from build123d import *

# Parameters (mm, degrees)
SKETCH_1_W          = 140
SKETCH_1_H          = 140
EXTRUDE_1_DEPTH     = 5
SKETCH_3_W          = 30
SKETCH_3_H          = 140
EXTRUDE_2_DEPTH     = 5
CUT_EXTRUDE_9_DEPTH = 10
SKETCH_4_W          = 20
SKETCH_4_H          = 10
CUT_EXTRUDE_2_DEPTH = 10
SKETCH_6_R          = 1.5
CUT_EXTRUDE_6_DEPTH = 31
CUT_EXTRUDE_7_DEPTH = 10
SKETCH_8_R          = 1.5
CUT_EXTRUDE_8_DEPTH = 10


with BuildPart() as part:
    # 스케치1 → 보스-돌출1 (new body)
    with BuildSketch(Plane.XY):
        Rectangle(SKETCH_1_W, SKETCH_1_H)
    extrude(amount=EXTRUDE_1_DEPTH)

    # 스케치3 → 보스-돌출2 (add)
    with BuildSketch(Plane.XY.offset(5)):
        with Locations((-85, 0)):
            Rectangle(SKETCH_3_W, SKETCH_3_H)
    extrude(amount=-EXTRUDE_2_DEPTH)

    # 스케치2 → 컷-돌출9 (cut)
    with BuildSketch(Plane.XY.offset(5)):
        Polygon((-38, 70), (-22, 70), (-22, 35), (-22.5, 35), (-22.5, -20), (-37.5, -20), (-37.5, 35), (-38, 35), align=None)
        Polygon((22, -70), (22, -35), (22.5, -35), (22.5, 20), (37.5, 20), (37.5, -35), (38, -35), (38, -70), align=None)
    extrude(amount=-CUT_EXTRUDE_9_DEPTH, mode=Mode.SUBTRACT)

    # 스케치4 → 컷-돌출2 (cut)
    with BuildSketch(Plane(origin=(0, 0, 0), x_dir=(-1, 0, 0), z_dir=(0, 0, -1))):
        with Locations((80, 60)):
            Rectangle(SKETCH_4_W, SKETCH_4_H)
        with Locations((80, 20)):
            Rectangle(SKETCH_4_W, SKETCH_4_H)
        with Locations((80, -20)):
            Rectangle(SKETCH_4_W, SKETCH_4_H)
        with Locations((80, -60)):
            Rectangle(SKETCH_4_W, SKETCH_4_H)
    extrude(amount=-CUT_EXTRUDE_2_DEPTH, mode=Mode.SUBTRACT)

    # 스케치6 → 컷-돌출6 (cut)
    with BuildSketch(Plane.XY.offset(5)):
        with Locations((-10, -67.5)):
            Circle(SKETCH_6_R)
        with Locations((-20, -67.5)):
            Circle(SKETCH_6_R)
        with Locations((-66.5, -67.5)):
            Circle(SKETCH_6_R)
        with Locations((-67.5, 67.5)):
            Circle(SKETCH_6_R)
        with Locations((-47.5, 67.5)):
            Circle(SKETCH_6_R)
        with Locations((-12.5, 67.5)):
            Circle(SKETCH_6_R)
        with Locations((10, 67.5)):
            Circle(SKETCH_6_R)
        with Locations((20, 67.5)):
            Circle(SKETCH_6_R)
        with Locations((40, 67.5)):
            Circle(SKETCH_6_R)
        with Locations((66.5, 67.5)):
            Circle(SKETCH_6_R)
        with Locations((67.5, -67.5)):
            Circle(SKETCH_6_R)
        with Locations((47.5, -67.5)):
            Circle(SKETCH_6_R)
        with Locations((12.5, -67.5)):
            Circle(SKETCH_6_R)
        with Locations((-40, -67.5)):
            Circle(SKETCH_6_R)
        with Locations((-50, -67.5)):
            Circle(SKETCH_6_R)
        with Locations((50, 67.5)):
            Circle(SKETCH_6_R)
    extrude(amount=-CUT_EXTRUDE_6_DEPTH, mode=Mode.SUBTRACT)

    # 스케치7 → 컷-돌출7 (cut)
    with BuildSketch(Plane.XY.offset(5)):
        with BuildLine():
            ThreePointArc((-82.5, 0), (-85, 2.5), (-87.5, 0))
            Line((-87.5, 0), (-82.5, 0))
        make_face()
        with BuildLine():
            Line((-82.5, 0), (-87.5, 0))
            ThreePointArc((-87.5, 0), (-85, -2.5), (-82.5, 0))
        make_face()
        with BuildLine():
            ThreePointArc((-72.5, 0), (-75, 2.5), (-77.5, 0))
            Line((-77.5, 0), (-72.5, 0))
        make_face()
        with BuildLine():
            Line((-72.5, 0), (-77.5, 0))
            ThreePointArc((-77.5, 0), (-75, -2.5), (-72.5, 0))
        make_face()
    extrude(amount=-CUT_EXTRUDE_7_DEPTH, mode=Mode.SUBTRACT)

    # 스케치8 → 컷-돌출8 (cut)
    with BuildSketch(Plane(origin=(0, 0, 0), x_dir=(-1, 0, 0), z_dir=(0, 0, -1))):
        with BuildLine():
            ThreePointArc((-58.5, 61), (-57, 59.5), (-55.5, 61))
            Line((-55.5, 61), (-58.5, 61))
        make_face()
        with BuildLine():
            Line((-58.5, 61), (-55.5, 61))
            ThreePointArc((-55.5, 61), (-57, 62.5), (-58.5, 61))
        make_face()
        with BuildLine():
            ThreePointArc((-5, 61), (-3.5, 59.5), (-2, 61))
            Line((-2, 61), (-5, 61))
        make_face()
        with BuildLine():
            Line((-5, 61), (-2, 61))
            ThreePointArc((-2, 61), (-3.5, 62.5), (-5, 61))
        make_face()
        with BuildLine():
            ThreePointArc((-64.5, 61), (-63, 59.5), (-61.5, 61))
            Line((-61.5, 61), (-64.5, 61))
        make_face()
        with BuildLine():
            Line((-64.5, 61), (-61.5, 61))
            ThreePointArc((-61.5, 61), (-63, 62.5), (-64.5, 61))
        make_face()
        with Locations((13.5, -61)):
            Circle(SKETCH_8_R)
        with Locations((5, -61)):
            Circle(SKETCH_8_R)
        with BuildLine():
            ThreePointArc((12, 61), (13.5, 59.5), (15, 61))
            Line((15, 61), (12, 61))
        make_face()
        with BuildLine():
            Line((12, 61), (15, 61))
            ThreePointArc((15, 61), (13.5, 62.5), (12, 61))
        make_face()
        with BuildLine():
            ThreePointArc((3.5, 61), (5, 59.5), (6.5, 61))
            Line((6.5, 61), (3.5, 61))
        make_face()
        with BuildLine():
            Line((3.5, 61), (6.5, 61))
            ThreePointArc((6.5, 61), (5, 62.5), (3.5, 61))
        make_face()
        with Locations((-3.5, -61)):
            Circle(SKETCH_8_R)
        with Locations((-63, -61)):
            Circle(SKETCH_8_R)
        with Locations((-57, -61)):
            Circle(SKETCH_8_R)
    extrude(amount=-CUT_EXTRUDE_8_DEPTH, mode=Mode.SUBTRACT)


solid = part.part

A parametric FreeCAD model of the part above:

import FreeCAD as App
import Part
import Sketcher

V = App.Vector
Q = App.Units.Quantity


def add_polygon(sketch, points):
    """Adds a closed chain of lines whose ends are joined by coincident constraints."""
    first, n = sketch.GeometryCount, len(points)
    for a, b in zip(points, points[1:] + points[:1]):
        sketch.addGeometry(Part.LineSegment(App.Vector(*a, 0), App.Vector(*b, 0)), False)
    for i in range(n):
        sketch.addConstraint(Sketcher.Constraint("Coincident", first + i, 2, first + (i + 1) % n, 1))

doc = App.newDocument("Part")
body = doc.addObject("PartDesign::Body", "Body")

# Sketch on XY plane
sketch1 = doc.addObject("Sketcher::SketchObject", "Sketch")
body.addObject(sketch1)
sketch1.AttachmentSupport = (doc.XY_Plane, [""])
sketch1.MapMode = "FlatFace"
add_polygon(sketch1, [(-70, 70), (-70, -70), (70, -70), (70, 70)])  # lines 0-3
sketch1.addConstraint([
    Sketcher.Constraint("Vertical", 0),
    Sketcher.Constraint("Horizontal", 1),
    Sketcher.Constraint("Vertical", 2),
    Sketcher.Constraint("Horizontal", 3),
    Sketcher.Constraint("Symmetric", 0, 2, 2, 2, -1, 1),
    Sketcher.Constraint("Equal", 3, 0),
    Sketcher.Constraint("DistanceX", 1, 1, 1, 2, Q("140 mm")),
])
pad1 = doc.addObject("PartDesign::Pad", "Pad")
body.addObject(pad1)
pad1.Profile = sketch1
pad1.Length = 5

# Sketch on XY plane
sketch2 = doc.addObject("Sketcher::SketchObject", "Sketch001")
body.addObject(sketch2)
sketch2.AttachmentSupport = (doc.XY_Plane, [""])
sketch2.MapMode = "FlatFace"
sketch2.AttachmentOffset = App.Placement(V(0, 0, 5), App.Rotation())
add_polygon(sketch2, [(-100, 70), (-100, -70), (-70, -70), (-70, 70)])  # lines 0-3
sketch2.addConstraint([
    Sketcher.Constraint("Vertical", 0),
    Sketcher.Constraint("Horizontal", 1),
    Sketcher.Constraint("Vertical", 2),
    Sketcher.Constraint("Horizontal", 3),
    Sketcher.Constraint("DistanceX", 1, 1, 1, 2, Q("30 mm")),
    Sketcher.Constraint("DistanceY", 0, 2, 0, 1, Q("140 mm")),
    Sketcher.Constraint("DistanceX", 0, 2, -1, 1, Q("100 mm")),
    Sketcher.Constraint("DistanceY", 0, 2, -1, 1, Q("70 mm")),
])
pad2 = doc.addObject("PartDesign::Pad", "Pad001")
body.addObject(pad2)
pad2.Profile = sketch2
pad2.Length = 5
pad2.Reversed = True

# Sketch on XY plane
sketch3 = doc.addObject("Sketcher::SketchObject", "Sketch002")
body.addObject(sketch3)
sketch3.AttachmentSupport = (doc.XY_Plane, [""])
sketch3.MapMode = "FlatFace"
sketch3.AttachmentOffset = App.Placement(V(0, 0, 5), App.Rotation())
add_polygon(sketch3, [(-22, 70), (-38, 70), (-38, 35), (-37.5, 35), (-37.5, -20), (-22.5, -20), (-22.5, 35), (-22, 35)])  # lines 0-7
add_polygon(sketch3, [(22, -35), (22, -70), (38, -70), (38, -35), (37.5, -35), (37.5, 20), (22.5, 20), (22.5, -35)])  # lines 8-15
sketch3.addConstraint([
    Sketcher.Constraint("Horizontal", 0),
    Sketcher.Constraint("Vertical", 1),
    Sketcher.Constraint("Horizontal", 2),
    Sketcher.Constraint("Vertical", 3),
    Sketcher.Constraint("Horizontal", 4),
    Sketcher.Constraint("Vertical", 5),
    Sketcher.Constraint("Horizontal", 6),
    Sketcher.Constraint("Vertical", 7),
    Sketcher.Constraint("Vertical", 8),
    Sketcher.Constraint("Horizontal", 9),
    Sketcher.Constraint("Vertical", 10),
    Sketcher.Constraint("Horizontal", 11),
    Sketcher.Constraint("Vertical", 12),
    Sketcher.Constraint("Horizontal", 13),
    Sketcher.Constraint("Vertical", 14),
    Sketcher.Constraint("Horizontal", 15),
    Sketcher.Constraint("Symmetric", 7, 2, 8, 2, -1, 1),
    Sketcher.Constraint("Symmetric", 1, 2, 10, 2, -1, 1),
    Sketcher.Constraint("Symmetric", 3, 2, 12, 2, -1, 1),
    Sketcher.Constraint("Symmetric", 5, 2, 14, 2, -1, 1),
    Sketcher.Constraint("Horizontal", 2, 2, 5, 2),
    Sketcher.Constraint("Equal", 2, 6),
    Sketcher.Constraint("DistanceX", 0, 2, 0, 1, Q("16 mm")),
    Sketcher.Constraint("DistanceX", 4, 1, 4, 2, Q("15 mm")),
    Sketcher.Constraint("DistanceY", 1, 2, 1, 1, Q("35 mm")),
    Sketcher.Constraint("DistanceY", 3, 2, 3, 1, Q("55 mm")),
    Sketcher.Constraint("DistanceX", 0, 2, -1, 1, Q("38 mm")),
    Sketcher.Constraint("DistanceY", -1, 1, 0, 2, Q("70 mm")),
])
pocket1 = doc.addObject("PartDesign::Pocket", "Pocket")
body.addObject(pocket1)
pocket1.Profile = sketch3
pocket1.Length = 10

# Sketch on XY plane
sketch4 = doc.addObject("Sketcher::SketchObject", "Sketch003")
body.addObject(sketch4)
sketch4.AttachmentSupport = (doc.XY_Plane, [""])
sketch4.MapMode = "FlatFace"
add_polygon(sketch4, [(-70, 65), (-70, 55), (-90, 55), (-90, 65)])  # lines 0-3
add_polygon(sketch4, [(-70, 25), (-70, 15), (-90, 15), (-90, 25)])  # lines 4-7
add_polygon(sketch4, [(-70, -15), (-70, -25), (-90, -25), (-90, -15)])  # lines 8-11
add_polygon(sketch4, [(-70, -55), (-70, -65), (-90, -65), (-90, -55)])  # lines 12-15
sketch4.addConstraint([
    Sketcher.Constraint("Vertical", 0),
    Sketcher.Constraint("Horizontal", 1),
    Sketcher.Constraint("Vertical", 2),
    Sketcher.Constraint("Horizontal", 3),
    Sketcher.Constraint("Vertical", 4),
    Sketcher.Constraint("Horizontal", 5),
    Sketcher.Constraint("Vertical", 6),
    Sketcher.Constraint("Horizontal", 7),
    Sketcher.Constraint("Vertical", 8),
    Sketcher.Constraint("Horizontal", 9),
    Sketcher.Constraint("Vertical", 10),
    Sketcher.Constraint("Horizontal", 11),
    Sketcher.Constraint("Vertical", 12),
    Sketcher.Constraint("Horizontal", 13),
    Sketcher.Constraint("Vertical", 14),
    Sketcher.Constraint("Horizontal", 15),
    Sketcher.Constraint("Symmetric", 7, 2, 8, 2, -1),
    Sketcher.Constraint("Symmetric", 5, 2, 10, 2, -1),
    Sketcher.Constraint("Symmetric", 3, 2, 12, 2, -1),
    Sketcher.Constraint("Symmetric", 1, 2, 14, 2, -1),
    Sketcher.Constraint("Vertical", 3, 2, 4, 2),
    Sketcher.Constraint("Vertical", 2, 2, 5, 2),
    Sketcher.Constraint("Equal", 2, 4),
    Sketcher.Constraint("DistanceX", 1, 2, 1, 1, Q("20 mm")),
    Sketcher.Constraint("DistanceY", 0, 2, 0, 1, Q("10 mm")),
    Sketcher.Constraint("DistanceX", 0, 2, -1, 1, Q("70 mm")),
    Sketcher.Constraint("DistanceY", -1, 1, 0, 2, Q("55 mm")),
    Sketcher.Constraint("DistanceY", -1, 1, 4, 2, Q("15 mm")),
])
pocket2 = doc.addObject("PartDesign::Pocket", "Pocket001")
body.addObject(pocket2)
pocket2.Profile = sketch4
pocket2.Length = 10
pocket2.Reversed = True

# Sketch on XY plane
sketch5 = doc.addObject("Sketcher::SketchObject", "Sketch004")
body.addObject(sketch5)
sketch5.AttachmentSupport = (doc.XY_Plane, [""])
sketch5.MapMode = "FlatFace"
sketch5.AttachmentOffset = App.Placement(V(0, 0, 5), App.Rotation())
sketch5.addGeometry([
    Part.Circle(V(-10, -67.5, 0), V(0, 0, 1), 1.5),  # 0
    Part.Circle(V(-20, -67.5, 0), V(0, 0, 1), 1.5),  # 1
    Part.Circle(V(-66.5, -67.5, 0), V(0, 0, 1), 1.5),  # 2
    Part.Circle(V(-67.5, 67.5, 0), V(0, 0, 1), 1.5),  # 3
    Part.Circle(V(-47.5, 67.5, 0), V(0, 0, 1), 1.5),  # 4
    Part.Circle(V(-12.5, 67.5, 0), V(0, 0, 1), 1.5),  # 5
    Part.Circle(V(10, 67.5, 0), V(0, 0, 1), 1.5),  # 6
    Part.Circle(V(20, 67.5, 0), V(0, 0, 1), 1.5),  # 7
    Part.Circle(V(40, 67.5, 0), V(0, 0, 1), 1.5),  # 8
    Part.Circle(V(66.5, 67.5, 0), V(0, 0, 1), 1.5),  # 9
    Part.Circle(V(67.5, -67.5, 0), V(0, 0, 1), 1.5),  # 10
    Part.Circle(V(47.5, -67.5, 0), V(0, 0, 1), 1.5),  # 11
    Part.Circle(V(12.5, -67.5, 0), V(0, 0, 1), 1.5),  # 12
    Part.Circle(V(-40, -67.5, 0), V(0, 0, 1), 1.5),  # 13
    Part.Circle(V(-50, -67.5, 0), V(0, 0, 1), 1.5),  # 14
    Part.Circle(V(50, 67.5, 0), V(0, 0, 1), 1.5),  # 15
], False)
sketch5.addConstraint([
    Sketcher.Constraint("Equal", 0, 1),
    Sketcher.Constraint("Equal", 1, 2),
    Sketcher.Constraint("Equal", 2, 3),
    Sketcher.Constraint("Equal", 3, 4),
    Sketcher.Constraint("Equal", 4, 5),
    Sketcher.Constraint("Equal", 5, 6),
    Sketcher.Constraint("Equal", 6, 7),
    Sketcher.Constraint("Equal", 7, 8),
    Sketcher.Constraint("Equal", 8, 9),
    Sketcher.Constraint("Equal", 9, 10),
    Sketcher.Constraint("Equal", 10, 11),
    Sketcher.Constraint("Equal", 11, 12),
    Sketcher.Constraint("Equal", 12, 13),
    Sketcher.Constraint("Equal", 13, 14),
    Sketcher.Constraint("Equal", 14, 15),
    Sketcher.Constraint("Symmetric", 0, 3, 6, 3, -1, 1),
    Sketcher.Constraint("Symmetric", 1, 3, 7, 3, -1, 1),
    Sketcher.Constraint("Symmetric", 2, 3, 9, 3, -1, 1),
    Sketcher.Constraint("Symmetric", 3, 3, 10, 3, -1, 1),
    Sketcher.Constraint("Symmetric", 4, 3, 11, 3, -1, 1),
    Sketcher.Constraint("Symmetric", 5, 3, 12, 3, -1, 1),
    Sketcher.Constraint("Symmetric", 8, 3, 13, 3, -1, 1),
    Sketcher.Constraint("Symmetric", 14, 3, 15, 3, -1, 1),
    Sketcher.Constraint("Horizontal", 0, 3, 1, 3),
    Sketcher.Constraint("Horizontal", 1, 3, 2, 3),
    Sketcher.Constraint("Horizontal", 3, 3, 4, 3),
    Sketcher.Constraint("Horizontal", 4, 3, 5, 3),
    Sketcher.Constraint("Horizontal", 5, 3, 6, 3),
    Sketcher.Constraint("Horizontal", 7, 3, 8, 3),
    Sketcher.Constraint("Horizontal", 13, 3, 14, 3),
    Sketcher.Constraint("Diameter", 0, Q("3 mm")),
    Sketcher.Constraint("DistanceX", 0, 3, -1, 1, Q("10 mm")),
    Sketcher.Constraint("DistanceX", 1, 3, -1, 1, Q("20 mm")),
    Sketcher.Constraint("DistanceX", -1, 1, 8, 3, Q("40 mm")),
    Sketcher.Constraint("DistanceX", 14, 3, -1, 1, Q("50 mm")),
    Sketcher.Constraint("DistanceX", 3, 3, 2, 3, Q("1 mm")),
    Sketcher.Constraint("DistanceY", 2, 3, 3, 3, Q("135 mm")),
    Sketcher.Constraint("DistanceX", 3, 3, 4, 3, Q("20 mm")),
    Sketcher.Constraint("DistanceX", 4, 3, 5, 3, Q("35 mm")),
    Sketcher.Constraint("DistanceX", 5, 3, 9, 3, Q("79 mm")),
])
pocket3 = doc.addObject("PartDesign::Pocket", "Pocket002")
body.addObject(pocket3)
pocket3.Profile = sketch5
pocket3.Length = 31

# Sketch on XY plane
sketch6 = doc.addObject("Sketcher::SketchObject", "Sketch005")
body.addObject(sketch6)
sketch6.AttachmentSupport = (doc.XY_Plane, [""])
sketch6.MapMode = "FlatFace"
sketch6.AttachmentOffset = App.Placement(V(0, 0, 5), App.Rotation())
sketch6.addGeometry([
    Part.Circle(V(-85, 0, 0), V(0, 0, 1), 2.5),
    Part.Circle(V(-75, 0, 0), V(0, 0, 1), 2.5),
], False)
sketch6.addConstraint([
    Sketcher.Constraint("Equal", 0, 1),
    Sketcher.Constraint("PointOnObject", 0, 3, -1),
    Sketcher.Constraint("PointOnObject", 1, 3, -1),
    Sketcher.Constraint("Diameter", 0, Q("5 mm")),
    Sketcher.Constraint("DistanceX", 0, 3, -1, 1, Q("85 mm")),
    Sketcher.Constraint("DistanceX", 1, 3, -1, 1, Q("75 mm")),
])
pocket4 = doc.addObject("PartDesign::Pocket", "Pocket003")
body.addObject(pocket4)
pocket4.Profile = sketch6
pocket4.Length = 10

# Sketch on XY plane
sketch7 = doc.addObject("Sketcher::SketchObject", "Sketch006")
body.addObject(sketch7)
sketch7.AttachmentSupport = (doc.XY_Plane, [""])
sketch7.MapMode = "FlatFace"
sketch7.addGeometry([
    Part.Circle(V(57, 61, 0), V(0, 0, 1), 1.5),  # 0
    Part.Circle(V(3.5, 61, 0), V(0, 0, 1), 1.5),  # 1
    Part.Circle(V(63, 61, 0), V(0, 0, 1), 1.5),  # 2
    Part.Circle(V(-13.5, -61, 0), V(0, 0, 1), 1.5),  # 3
    Part.Circle(V(-5, -61, 0), V(0, 0, 1), 1.5),  # 4
    Part.Circle(V(-13.5, 61, 0), V(0, 0, 1), 1.5),  # 5
    Part.Circle(V(-5, 61, 0), V(0, 0, 1), 1.5),  # 6
    Part.Circle(V(3.5, -61, 0), V(0, 0, 1), 1.5),  # 7
    Part.Circle(V(63, -61, 0), V(0, 0, 1), 1.5),  # 8
    Part.Circle(V(57, -61, 0), V(0, 0, 1), 1.5),  # 9
], False)
sketch7.addConstraint([
    Sketcher.Constraint("Equal", 0, 1),
    Sketcher.Constraint("Equal", 1, 2),
    Sketcher.Constraint("Equal", 2, 3),
    Sketcher.Constraint("Equal", 3, 4),
    Sketcher.Constraint("Equal", 4, 5),
    Sketcher.Constraint("Equal", 5, 6),
    Sketcher.Constraint("Equal", 6, 7),
    Sketcher.Constraint("Equal", 7, 8),
    Sketcher.Constraint("Equal", 8, 9),
    Sketcher.Constraint("Symmetric", 3, 3, 5, 3, -1),
    Sketcher.Constraint("Symmetric", 4, 3, 6, 3, -1),
    Sketcher.Constraint("Symmetric", 1, 3, 7, 3, -1),
    Sketcher.Constraint("Symmetric", 2, 3, 8, 3, -1),
    Sketcher.Constraint("Symmetric", 0, 3, 9, 3, -1),
    Sketcher.Constraint("Horizontal", 0, 3, 1, 3),
    Sketcher.Constraint("Horizontal", 1, 3, 2, 3),
    Sketcher.Constraint("Horizontal", 3, 3, 4, 3),
    Sketcher.Constraint("Horizontal", 2, 3, 5, 3),
    Sketcher.Constraint("Diameter", 0, Q("3 mm")),
    Sketcher.Constraint("DistanceX", -1, 1, 0, 3, Q("57 mm")),
    Sketcher.Constraint("DistanceY", -1, 1, 0, 3, Q("61 mm")),
    Sketcher.Constraint("DistanceX", -1, 1, 2, 3, Q("63 mm")),
    Sketcher.Constraint("DistanceX", 4, 3, -1, 1, Q("5 mm")),
    Sketcher.Constraint("DistanceX", 3, 3, 1, 3, Q("17 mm")),
    Sketcher.Constraint("DistanceX", -1, 1, 1, 3, Q("3.5 mm")),
])
pocket5 = doc.addObject("PartDesign::Pocket", "Pocket004")
body.addObject(pocket5)
pocket5.Profile = sketch7
pocket5.Length = 10
pocket5.Reversed = True

doc.recompute()
